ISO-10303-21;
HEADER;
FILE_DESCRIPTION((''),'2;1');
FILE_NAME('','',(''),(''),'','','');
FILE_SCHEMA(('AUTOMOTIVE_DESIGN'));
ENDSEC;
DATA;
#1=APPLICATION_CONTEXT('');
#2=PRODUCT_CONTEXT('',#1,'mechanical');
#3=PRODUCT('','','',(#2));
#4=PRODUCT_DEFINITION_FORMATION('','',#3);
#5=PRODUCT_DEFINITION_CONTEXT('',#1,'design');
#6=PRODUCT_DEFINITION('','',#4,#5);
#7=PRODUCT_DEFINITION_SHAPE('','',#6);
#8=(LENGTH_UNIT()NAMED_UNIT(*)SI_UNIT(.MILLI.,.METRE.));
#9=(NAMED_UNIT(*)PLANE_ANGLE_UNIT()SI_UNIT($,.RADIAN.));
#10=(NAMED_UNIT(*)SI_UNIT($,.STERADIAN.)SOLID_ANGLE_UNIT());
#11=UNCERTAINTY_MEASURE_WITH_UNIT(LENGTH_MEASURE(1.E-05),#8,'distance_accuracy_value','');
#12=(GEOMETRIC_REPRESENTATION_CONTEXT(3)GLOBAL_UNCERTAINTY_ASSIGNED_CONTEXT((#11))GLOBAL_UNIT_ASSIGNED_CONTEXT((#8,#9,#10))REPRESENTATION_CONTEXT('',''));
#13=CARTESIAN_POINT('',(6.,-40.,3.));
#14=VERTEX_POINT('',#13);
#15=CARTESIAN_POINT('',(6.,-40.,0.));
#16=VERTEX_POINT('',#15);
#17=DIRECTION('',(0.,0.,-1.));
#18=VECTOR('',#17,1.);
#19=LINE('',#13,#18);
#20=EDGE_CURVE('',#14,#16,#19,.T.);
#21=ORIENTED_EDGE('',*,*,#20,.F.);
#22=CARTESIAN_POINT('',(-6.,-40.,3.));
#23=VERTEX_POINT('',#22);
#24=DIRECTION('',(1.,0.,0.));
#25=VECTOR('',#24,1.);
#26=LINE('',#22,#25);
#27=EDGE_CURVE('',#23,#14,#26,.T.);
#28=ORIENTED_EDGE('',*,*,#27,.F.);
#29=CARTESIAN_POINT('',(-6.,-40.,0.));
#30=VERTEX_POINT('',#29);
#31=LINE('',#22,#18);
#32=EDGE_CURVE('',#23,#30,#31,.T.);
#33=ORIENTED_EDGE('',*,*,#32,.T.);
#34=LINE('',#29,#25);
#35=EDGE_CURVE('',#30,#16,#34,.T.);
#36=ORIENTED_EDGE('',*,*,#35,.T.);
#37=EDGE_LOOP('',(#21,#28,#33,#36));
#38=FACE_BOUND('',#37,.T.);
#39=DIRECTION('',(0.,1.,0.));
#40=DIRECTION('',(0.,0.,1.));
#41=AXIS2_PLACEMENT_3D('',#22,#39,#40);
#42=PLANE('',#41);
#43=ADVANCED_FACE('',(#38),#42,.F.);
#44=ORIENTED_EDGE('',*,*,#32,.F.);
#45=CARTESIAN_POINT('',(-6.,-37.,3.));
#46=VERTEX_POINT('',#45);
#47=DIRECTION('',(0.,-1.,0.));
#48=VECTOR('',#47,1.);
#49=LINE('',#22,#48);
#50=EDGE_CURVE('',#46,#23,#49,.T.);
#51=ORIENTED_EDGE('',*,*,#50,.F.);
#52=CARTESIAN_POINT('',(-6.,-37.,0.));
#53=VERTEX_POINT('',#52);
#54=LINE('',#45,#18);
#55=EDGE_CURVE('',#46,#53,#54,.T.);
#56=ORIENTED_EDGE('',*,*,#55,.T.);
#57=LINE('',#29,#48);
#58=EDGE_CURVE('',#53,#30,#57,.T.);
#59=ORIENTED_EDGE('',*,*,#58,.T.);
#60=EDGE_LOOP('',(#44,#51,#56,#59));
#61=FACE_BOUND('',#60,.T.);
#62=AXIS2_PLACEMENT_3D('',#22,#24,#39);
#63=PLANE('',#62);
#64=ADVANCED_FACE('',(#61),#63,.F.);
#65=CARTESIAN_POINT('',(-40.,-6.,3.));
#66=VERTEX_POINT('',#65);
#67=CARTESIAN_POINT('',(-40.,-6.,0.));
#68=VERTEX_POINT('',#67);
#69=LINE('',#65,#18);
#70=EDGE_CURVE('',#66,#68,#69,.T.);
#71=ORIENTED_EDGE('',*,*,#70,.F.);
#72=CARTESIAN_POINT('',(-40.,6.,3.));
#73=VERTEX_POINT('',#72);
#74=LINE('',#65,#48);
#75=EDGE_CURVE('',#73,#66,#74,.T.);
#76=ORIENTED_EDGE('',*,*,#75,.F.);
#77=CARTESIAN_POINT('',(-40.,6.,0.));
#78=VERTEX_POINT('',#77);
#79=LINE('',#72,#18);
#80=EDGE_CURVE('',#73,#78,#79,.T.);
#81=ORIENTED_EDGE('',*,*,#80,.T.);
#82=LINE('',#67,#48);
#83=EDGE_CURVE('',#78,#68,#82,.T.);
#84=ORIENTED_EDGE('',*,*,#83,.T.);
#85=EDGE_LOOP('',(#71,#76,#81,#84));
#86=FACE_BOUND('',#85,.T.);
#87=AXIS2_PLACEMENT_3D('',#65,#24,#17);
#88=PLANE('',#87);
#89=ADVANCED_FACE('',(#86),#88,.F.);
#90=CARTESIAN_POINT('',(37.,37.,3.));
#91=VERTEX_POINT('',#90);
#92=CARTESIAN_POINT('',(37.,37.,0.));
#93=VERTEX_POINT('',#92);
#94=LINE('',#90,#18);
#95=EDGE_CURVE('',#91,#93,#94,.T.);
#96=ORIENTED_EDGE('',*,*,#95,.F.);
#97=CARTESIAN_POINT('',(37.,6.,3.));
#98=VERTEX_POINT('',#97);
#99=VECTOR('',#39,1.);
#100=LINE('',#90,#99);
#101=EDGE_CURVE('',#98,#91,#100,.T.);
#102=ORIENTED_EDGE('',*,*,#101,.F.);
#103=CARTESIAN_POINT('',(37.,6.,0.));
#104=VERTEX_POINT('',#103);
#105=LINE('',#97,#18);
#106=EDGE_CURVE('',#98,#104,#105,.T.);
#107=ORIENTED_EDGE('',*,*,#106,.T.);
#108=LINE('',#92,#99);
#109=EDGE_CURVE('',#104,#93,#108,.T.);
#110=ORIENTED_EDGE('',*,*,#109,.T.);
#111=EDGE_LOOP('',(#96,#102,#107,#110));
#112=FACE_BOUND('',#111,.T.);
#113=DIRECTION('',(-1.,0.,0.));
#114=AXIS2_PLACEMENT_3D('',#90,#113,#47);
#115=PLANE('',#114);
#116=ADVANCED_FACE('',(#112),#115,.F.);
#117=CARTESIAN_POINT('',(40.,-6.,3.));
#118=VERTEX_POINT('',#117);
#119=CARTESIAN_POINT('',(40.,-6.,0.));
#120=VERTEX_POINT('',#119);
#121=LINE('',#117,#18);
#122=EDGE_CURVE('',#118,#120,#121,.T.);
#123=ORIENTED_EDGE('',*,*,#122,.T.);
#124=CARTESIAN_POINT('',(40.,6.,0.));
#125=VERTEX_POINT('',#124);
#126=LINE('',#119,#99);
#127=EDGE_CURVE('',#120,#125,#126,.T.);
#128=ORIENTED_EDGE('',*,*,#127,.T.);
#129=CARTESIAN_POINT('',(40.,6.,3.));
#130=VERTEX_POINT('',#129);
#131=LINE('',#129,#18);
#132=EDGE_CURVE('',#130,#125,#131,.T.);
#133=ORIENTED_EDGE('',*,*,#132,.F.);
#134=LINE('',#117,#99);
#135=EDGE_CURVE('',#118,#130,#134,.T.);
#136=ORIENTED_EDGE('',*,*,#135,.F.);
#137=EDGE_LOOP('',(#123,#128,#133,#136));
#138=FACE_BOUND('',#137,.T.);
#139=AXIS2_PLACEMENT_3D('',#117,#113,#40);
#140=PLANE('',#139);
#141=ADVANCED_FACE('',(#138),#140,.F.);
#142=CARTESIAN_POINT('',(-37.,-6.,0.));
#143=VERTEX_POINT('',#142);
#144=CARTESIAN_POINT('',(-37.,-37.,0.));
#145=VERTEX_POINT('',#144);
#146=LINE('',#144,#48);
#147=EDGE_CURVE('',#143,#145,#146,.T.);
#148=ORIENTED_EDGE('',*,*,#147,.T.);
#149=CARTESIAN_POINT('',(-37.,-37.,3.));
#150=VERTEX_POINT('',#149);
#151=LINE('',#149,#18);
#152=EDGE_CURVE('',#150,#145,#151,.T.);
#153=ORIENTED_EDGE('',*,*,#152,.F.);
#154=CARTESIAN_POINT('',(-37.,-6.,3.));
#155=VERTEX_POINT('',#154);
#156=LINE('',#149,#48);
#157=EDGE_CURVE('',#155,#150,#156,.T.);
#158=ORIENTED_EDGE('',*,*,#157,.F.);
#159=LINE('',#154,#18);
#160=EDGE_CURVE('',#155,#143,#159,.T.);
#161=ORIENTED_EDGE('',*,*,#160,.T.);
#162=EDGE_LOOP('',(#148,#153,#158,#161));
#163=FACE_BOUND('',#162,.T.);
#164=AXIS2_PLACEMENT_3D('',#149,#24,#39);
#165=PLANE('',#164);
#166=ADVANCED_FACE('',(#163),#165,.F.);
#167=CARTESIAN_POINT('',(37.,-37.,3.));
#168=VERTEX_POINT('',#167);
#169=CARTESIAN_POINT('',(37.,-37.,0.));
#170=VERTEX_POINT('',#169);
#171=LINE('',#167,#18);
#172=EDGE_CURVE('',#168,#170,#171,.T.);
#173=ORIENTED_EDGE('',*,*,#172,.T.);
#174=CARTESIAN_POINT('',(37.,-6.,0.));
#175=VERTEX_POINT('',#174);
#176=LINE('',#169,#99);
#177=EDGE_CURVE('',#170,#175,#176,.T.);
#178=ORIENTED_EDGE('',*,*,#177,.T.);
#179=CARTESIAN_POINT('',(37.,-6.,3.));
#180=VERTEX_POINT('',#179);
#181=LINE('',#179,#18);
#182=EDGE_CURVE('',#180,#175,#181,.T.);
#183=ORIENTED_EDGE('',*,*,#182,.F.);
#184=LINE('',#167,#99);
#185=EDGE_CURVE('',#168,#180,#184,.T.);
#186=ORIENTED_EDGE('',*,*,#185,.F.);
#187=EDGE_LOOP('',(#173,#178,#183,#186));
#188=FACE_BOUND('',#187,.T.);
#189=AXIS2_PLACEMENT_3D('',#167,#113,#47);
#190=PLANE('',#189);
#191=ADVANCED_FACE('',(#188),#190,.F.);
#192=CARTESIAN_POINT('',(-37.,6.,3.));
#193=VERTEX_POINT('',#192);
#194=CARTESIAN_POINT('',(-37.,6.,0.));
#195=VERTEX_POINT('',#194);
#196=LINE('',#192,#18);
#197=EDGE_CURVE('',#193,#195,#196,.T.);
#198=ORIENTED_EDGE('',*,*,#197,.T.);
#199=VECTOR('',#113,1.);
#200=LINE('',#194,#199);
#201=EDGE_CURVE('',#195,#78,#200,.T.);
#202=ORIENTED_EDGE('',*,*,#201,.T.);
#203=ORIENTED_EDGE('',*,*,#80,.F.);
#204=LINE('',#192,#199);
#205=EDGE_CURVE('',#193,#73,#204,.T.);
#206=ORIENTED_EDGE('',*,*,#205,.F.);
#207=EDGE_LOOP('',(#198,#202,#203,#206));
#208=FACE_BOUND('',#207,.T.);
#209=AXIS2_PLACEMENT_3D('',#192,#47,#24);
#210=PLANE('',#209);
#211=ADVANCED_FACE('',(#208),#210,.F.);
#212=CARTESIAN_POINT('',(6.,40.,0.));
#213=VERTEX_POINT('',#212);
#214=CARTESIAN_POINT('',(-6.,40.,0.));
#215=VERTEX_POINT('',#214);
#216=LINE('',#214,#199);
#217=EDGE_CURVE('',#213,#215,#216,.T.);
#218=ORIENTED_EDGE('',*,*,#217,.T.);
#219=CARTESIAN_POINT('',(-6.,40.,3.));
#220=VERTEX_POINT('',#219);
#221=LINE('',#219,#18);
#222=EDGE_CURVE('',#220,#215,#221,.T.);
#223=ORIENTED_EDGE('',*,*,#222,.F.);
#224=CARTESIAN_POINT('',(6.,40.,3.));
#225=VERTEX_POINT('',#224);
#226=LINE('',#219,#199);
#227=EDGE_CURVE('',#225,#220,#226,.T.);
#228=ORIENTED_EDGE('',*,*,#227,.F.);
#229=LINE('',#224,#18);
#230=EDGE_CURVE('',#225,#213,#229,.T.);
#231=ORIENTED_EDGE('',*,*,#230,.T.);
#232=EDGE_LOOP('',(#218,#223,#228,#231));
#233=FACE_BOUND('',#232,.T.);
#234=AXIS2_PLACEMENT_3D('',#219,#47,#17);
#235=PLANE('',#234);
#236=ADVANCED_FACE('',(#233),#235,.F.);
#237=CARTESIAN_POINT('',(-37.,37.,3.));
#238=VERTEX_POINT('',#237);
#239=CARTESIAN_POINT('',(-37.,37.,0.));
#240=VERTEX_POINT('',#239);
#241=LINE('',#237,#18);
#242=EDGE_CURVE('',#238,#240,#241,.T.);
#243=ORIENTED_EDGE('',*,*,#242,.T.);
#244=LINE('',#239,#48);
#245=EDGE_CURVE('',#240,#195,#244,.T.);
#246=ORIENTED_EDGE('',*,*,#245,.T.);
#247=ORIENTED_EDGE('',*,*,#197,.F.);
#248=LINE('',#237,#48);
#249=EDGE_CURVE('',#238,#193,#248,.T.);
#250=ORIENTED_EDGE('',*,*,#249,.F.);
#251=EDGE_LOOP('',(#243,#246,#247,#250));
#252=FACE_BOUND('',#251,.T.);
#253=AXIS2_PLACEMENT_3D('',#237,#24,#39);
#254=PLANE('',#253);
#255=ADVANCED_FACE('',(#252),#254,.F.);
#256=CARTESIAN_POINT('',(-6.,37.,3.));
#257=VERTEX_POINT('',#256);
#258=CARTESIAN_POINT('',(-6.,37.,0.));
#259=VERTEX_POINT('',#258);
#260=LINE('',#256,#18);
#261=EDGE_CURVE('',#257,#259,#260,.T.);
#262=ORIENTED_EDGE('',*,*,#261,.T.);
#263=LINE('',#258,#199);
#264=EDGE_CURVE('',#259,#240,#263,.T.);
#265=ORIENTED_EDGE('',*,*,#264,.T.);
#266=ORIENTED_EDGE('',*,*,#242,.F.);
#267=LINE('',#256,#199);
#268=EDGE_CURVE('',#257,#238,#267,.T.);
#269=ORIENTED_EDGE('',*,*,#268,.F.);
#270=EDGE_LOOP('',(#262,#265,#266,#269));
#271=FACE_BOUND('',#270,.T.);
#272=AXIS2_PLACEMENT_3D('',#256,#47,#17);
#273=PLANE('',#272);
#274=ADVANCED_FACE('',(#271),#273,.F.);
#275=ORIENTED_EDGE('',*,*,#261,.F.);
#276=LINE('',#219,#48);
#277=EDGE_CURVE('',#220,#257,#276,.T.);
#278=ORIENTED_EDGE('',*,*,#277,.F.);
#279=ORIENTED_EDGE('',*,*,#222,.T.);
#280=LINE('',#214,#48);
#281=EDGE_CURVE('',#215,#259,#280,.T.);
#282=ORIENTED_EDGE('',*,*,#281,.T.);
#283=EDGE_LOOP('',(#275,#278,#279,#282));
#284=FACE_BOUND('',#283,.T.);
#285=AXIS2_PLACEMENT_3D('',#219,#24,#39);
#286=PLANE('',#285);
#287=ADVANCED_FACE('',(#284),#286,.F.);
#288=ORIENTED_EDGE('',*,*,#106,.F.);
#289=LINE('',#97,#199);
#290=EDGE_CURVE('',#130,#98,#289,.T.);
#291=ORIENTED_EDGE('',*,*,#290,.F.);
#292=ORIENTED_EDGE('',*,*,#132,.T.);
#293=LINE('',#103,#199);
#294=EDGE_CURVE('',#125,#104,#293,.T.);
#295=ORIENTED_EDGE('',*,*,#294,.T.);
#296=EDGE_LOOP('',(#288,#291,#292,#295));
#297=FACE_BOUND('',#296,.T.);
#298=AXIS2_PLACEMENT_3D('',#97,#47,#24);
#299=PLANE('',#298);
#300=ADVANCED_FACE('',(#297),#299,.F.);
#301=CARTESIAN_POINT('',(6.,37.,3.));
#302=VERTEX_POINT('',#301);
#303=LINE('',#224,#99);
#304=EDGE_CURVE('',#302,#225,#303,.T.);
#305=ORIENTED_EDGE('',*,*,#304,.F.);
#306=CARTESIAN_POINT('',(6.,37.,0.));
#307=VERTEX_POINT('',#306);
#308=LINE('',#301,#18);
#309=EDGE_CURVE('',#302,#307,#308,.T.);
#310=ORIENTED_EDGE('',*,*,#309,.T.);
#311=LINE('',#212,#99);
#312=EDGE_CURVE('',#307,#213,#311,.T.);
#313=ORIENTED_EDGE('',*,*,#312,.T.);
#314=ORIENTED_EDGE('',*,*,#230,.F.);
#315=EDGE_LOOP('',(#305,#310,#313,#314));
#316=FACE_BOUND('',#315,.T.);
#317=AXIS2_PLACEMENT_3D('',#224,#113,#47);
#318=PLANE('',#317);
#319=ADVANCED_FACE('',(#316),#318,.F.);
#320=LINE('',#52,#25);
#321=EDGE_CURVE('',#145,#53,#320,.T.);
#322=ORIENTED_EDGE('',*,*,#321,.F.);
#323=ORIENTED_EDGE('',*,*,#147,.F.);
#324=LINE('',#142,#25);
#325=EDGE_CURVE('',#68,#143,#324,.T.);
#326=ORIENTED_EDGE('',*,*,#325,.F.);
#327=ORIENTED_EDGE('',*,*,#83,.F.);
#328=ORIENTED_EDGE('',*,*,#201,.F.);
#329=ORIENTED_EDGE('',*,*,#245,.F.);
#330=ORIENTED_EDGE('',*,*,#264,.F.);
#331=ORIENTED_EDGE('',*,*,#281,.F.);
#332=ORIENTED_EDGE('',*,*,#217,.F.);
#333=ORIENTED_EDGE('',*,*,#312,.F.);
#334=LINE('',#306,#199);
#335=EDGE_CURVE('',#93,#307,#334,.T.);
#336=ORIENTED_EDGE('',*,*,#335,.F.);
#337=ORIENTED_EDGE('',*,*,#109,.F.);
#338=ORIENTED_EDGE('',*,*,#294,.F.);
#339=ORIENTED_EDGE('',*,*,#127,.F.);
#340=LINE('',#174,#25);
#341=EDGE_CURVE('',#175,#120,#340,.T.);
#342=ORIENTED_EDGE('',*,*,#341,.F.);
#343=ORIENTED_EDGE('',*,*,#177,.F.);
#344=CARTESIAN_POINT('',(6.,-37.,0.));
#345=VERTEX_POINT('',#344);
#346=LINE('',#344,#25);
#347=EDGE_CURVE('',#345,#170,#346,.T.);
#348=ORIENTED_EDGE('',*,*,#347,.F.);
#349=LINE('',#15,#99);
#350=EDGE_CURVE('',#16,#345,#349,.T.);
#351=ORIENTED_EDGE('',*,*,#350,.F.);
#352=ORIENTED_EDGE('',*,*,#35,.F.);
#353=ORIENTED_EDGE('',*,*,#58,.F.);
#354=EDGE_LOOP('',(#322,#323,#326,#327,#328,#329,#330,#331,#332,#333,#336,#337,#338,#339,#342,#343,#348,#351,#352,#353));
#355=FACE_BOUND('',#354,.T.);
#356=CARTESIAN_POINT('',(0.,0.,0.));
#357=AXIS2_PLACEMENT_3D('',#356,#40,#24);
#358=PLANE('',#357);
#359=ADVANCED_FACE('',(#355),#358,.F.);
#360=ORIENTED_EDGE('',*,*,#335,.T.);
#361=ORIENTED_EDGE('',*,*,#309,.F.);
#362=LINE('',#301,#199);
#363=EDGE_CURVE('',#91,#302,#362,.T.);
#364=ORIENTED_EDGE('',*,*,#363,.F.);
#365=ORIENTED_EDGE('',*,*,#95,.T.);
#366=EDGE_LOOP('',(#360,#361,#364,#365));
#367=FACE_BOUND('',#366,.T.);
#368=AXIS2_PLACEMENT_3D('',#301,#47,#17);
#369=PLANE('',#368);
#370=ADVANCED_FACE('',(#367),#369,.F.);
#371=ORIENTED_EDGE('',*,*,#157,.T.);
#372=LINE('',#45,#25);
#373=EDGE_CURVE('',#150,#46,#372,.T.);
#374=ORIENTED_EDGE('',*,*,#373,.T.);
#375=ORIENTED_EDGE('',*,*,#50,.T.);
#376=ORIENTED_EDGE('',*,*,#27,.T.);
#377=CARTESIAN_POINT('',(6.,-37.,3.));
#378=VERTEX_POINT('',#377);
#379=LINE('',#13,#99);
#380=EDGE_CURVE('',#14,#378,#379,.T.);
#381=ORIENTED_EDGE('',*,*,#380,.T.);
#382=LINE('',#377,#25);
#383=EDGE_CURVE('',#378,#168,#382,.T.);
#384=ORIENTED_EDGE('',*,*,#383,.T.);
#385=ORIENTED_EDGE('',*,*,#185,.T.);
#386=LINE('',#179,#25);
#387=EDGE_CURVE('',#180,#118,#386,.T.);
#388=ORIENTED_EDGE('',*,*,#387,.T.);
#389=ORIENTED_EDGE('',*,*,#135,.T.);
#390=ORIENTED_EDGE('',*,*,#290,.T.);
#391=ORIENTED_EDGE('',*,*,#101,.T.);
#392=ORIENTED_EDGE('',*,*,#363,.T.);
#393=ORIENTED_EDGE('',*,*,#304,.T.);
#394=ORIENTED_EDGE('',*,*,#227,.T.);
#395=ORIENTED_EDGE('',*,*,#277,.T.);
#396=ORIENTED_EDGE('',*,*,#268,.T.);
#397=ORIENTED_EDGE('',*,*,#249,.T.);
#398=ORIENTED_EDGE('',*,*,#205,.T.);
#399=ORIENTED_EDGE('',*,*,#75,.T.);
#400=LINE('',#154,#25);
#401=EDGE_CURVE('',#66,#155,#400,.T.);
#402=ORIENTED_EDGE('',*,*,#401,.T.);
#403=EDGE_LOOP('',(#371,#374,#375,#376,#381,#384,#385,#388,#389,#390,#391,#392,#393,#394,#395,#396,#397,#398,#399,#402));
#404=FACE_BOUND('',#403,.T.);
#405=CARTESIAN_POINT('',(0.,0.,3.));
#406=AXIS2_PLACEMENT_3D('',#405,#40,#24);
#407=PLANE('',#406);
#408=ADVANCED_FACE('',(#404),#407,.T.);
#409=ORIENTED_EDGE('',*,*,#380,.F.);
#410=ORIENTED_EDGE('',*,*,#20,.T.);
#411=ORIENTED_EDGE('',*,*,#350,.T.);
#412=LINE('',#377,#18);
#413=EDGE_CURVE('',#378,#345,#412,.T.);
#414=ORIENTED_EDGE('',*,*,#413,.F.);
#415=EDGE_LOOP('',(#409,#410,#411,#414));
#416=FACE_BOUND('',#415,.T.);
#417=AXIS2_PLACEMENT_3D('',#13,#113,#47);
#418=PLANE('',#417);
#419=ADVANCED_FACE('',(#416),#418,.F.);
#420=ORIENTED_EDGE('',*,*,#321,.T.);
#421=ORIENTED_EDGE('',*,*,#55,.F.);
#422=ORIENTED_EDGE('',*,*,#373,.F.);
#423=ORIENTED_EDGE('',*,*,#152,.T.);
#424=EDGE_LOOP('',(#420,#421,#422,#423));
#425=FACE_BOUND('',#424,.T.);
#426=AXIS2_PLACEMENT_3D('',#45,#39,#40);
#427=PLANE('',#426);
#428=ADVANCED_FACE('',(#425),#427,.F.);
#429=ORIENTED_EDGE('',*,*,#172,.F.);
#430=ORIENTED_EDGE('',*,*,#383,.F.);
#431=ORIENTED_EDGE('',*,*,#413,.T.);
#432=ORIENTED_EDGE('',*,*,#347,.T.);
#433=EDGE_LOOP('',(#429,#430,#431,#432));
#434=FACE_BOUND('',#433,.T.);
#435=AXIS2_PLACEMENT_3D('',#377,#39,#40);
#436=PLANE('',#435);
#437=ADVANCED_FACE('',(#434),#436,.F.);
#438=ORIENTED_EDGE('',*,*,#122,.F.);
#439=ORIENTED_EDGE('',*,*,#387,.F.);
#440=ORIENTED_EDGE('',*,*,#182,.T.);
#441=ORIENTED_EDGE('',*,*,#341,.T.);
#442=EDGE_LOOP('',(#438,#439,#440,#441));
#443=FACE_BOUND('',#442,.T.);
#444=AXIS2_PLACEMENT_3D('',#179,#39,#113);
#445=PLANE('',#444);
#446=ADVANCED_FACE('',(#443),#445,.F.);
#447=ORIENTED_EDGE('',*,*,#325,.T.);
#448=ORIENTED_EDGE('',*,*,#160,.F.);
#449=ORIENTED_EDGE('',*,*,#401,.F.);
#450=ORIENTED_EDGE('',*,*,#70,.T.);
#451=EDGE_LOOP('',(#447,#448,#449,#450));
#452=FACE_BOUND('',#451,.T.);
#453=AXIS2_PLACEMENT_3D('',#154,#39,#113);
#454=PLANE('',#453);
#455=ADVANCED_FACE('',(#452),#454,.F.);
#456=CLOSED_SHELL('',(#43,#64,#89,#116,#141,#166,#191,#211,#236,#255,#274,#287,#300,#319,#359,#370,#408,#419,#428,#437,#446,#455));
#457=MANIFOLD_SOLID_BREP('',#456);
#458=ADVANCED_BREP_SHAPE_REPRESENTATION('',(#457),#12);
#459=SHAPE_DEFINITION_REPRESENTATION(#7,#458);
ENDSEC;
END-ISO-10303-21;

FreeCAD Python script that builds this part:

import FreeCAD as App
import Part
import Sketcher
Q = App.Units.Quantity

doc = App.newDocument("Part")
params = doc.addObject("Spreadsheet::Sheet", "Params")
for row, (alias, value) in enumerate([
    ("sketch1_width", "31 mm"),
    ("sketch1_width2", "12 mm"),
    ("sketch1_width3", "3 mm"),
    ("pad1_length", "3 mm"),
], start=1):
    params.set(f"A{row}", alias)
    params.set(f"B{row}", "=" + value)
    params.setAlias(f"B{row}", alias)

body = doc.addObject("PartDesign::Body", "Body")

sketch1 = doc.addObject("Sketcher::SketchObject", "Sketch")
body.addObject(sketch1)
sketch1.AttachmentSupport = (doc.XY_Plane, [""])
sketch1.MapMode = "FlatFace"
sketch1.addGeometry([
    Part.LineSegment(App.Vector(37, 37, 0), App.Vector(6, 37, 0)),
    Part.LineSegment(App.Vector(6, 37, 0), App.Vector(6, 40, 0)),
    Part.LineSegment(App.Vector(6, 40, 0), App.Vector(-6, 40, 0)),
    Part.LineSegment(App.Vector(-6, 40, 0), App.Vector(-6, 37, 0)),
    Part.LineSegment(App.Vector(-6, 37, 0), App.Vector(-37, 37, 0)),
    Part.LineSegment(App.Vector(-37, 37, 0), App.Vector(-37, 6, 0)),
    Part.LineSegment(App.Vector(-37, 6, 0), App.Vector(-40, 6, 0)),
    Part.LineSegment(App.Vector(-40, 6, 0), App.Vector(-40, -6, 0)),
    Part.LineSegment(App.Vector(-40, -6, 0), App.Vector(-37, -6, 0)),
    Part.LineSegment(App.Vector(-37, -6, 0), App.Vector(-37, -37, 0)),
    Part.LineSegment(App.Vector(-37, -37, 0), App.Vector(-6, -37, 0)),
    Part.LineSegment(App.Vector(-6, -37, 0), App.Vector(-6, -40, 0)),
    Part.LineSegment(App.Vector(-6, -40, 0), App.Vector(6, -40, 0)),
    Part.LineSegment(App.Vector(6, -40, 0), App.Vector(6, -37, 0)),
    Part.LineSegment(App.Vector(6, -37, 0), App.Vector(37, -37, 0)),
    Part.LineSegment(App.Vector(37, -37, 0), App.Vector(37, -6, 0)),
    Part.LineSegment(App.Vector(37, -6, 0), App.Vector(40, -6, 0)),
    Part.LineSegment(App.Vector(40, -6, 0), App.Vector(40, 6, 0)),
    Part.LineSegment(App.Vector(40, 6, 0), App.Vector(37, 6, 0)),
    Part.LineSegment(App.Vector(37, 6, 0), App.Vector(37, 37, 0)),
], False)
sketch1.addConstraint([
    Sketcher.Constraint("Coincident", 0, 2, 1, 1),
    Sketcher.Constraint("Coincident", 1, 2, 2, 1),
    Sketcher.Constraint("Coincident", 2, 2, 3, 1),
    Sketcher.Constraint("Coincident", 3, 2, 4, 1),
    Sketcher.Constraint("Coincident", 4, 2, 5, 1),
    Sketcher.Constraint("Coincident", 5, 2, 6, 1),
    Sketcher.Constraint("Coincident", 6, 2, 7, 1),
    Sketcher.Constraint("Coincident", 7, 2, 8, 1),
    Sketcher.Constraint("Coincident", 8, 2, 9, 1),
    Sketcher.Constraint("Coincident", 9, 2, 10, 1),
    Sketcher.Constraint("Coincident", 10, 2, 11, 1),
    Sketcher.Constraint("Coincident", 11, 2, 12, 1),
    Sketcher.Constraint("Coincident", 12, 2, 13, 1),
    Sketcher.Constraint("Coincident", 13, 2, 14, 1),
    Sketcher.Constraint("Coincident", 14, 2, 15, 1),
    Sketcher.Constraint("Coincident", 15, 2, 16, 1),
    Sketcher.Constraint("Coincident", 16, 2, 17, 1),
    Sketcher.Constraint("Coincident", 17, 2, 18, 1),
    Sketcher.Constraint("Coincident", 18, 2, 19, 1),
    Sketcher.Constraint("Coincident", 19, 2, 0, 1),
    Sketcher.Constraint("Horizontal", 0),
    Sketcher.Constraint("Vertical", 1),
    Sketcher.Constraint("Horizontal", 2),
    Sketcher.Constraint("Vertical", 3),
    Sketcher.Constraint("Horizontal", 4),
    Sketcher.Constraint("Vertical", 5),
    Sketcher.Constraint("Horizontal", 6),
    Sketcher.Constraint("Vertical", 7),
    Sketcher.Constraint("Horizontal", 8),
    Sketcher.Constraint("Vertical", 9),
    Sketcher.Constraint("Horizontal", 10),
    Sketcher.Constraint("Vertical", 11),
    Sketcher.Constraint("Horizontal", 12),
    Sketcher.Constraint("Vertical", 13),
    Sketcher.Constraint("Horizontal", 14),
    Sketcher.Constraint("Vertical", 15),
    Sketcher.Constraint("Horizontal", 16),
    Sketcher.Constraint("Vertical", 17),
    Sketcher.Constraint("Horizontal", 18),
    Sketcher.Constraint("Vertical", 19),
    Sketcher.Constraint("Symmetric", 0, 2, 10, 2, -1, 1),
    Sketcher.Constraint("Symmetric", 2, 2, 12, 2, -1, 1),
    Sketcher.Constraint("Symmetric", 4, 2, 14, 2, -1, 1),
    Sketcher.Constraint("Symmetric", 6, 2, 16, 2, -1, 1),
    Sketcher.Constraint("Symmetric", 8, 2, 18, 2, -1, 1),
    Sketcher.Constraint("Symmetric", 0, 2, 3, 2, -2),
    Sketcher.Constraint("Symmetric", 8, 2, 15, 2, -2),
    Sketcher.Constraint("Equal", 18, 1),
    Sketcher.Constraint("Equal", 14, 5),
    Sketcher.Constraint("Equal", 12, 7),
    Sketcher.Constraint("DistanceX", 0, 2, 0, 1, Q("31 mm")),
    Sketcher.Constraint("DistanceX", 2, 2, 2, 1, Q("12 mm")),
    Sketcher.Constraint("DistanceX", 6, 2, 6, 1, Q("3 mm")),
])
sketch1.setExpression("Constraints[50]", "Params.sketch1_width")
sketch1.setExpression("Constraints[51]", "Params.sketch1_width2")
sketch1.setExpression("Constraints[52]", "Params.sketch1_width3")
pad1 = doc.addObject("PartDesign::Pad", "Pad")
body.addObject(pad1)
pad1.Profile = sketch1
pad1.setExpression("Length", "Params.pad1_length")

doc.recompute()
